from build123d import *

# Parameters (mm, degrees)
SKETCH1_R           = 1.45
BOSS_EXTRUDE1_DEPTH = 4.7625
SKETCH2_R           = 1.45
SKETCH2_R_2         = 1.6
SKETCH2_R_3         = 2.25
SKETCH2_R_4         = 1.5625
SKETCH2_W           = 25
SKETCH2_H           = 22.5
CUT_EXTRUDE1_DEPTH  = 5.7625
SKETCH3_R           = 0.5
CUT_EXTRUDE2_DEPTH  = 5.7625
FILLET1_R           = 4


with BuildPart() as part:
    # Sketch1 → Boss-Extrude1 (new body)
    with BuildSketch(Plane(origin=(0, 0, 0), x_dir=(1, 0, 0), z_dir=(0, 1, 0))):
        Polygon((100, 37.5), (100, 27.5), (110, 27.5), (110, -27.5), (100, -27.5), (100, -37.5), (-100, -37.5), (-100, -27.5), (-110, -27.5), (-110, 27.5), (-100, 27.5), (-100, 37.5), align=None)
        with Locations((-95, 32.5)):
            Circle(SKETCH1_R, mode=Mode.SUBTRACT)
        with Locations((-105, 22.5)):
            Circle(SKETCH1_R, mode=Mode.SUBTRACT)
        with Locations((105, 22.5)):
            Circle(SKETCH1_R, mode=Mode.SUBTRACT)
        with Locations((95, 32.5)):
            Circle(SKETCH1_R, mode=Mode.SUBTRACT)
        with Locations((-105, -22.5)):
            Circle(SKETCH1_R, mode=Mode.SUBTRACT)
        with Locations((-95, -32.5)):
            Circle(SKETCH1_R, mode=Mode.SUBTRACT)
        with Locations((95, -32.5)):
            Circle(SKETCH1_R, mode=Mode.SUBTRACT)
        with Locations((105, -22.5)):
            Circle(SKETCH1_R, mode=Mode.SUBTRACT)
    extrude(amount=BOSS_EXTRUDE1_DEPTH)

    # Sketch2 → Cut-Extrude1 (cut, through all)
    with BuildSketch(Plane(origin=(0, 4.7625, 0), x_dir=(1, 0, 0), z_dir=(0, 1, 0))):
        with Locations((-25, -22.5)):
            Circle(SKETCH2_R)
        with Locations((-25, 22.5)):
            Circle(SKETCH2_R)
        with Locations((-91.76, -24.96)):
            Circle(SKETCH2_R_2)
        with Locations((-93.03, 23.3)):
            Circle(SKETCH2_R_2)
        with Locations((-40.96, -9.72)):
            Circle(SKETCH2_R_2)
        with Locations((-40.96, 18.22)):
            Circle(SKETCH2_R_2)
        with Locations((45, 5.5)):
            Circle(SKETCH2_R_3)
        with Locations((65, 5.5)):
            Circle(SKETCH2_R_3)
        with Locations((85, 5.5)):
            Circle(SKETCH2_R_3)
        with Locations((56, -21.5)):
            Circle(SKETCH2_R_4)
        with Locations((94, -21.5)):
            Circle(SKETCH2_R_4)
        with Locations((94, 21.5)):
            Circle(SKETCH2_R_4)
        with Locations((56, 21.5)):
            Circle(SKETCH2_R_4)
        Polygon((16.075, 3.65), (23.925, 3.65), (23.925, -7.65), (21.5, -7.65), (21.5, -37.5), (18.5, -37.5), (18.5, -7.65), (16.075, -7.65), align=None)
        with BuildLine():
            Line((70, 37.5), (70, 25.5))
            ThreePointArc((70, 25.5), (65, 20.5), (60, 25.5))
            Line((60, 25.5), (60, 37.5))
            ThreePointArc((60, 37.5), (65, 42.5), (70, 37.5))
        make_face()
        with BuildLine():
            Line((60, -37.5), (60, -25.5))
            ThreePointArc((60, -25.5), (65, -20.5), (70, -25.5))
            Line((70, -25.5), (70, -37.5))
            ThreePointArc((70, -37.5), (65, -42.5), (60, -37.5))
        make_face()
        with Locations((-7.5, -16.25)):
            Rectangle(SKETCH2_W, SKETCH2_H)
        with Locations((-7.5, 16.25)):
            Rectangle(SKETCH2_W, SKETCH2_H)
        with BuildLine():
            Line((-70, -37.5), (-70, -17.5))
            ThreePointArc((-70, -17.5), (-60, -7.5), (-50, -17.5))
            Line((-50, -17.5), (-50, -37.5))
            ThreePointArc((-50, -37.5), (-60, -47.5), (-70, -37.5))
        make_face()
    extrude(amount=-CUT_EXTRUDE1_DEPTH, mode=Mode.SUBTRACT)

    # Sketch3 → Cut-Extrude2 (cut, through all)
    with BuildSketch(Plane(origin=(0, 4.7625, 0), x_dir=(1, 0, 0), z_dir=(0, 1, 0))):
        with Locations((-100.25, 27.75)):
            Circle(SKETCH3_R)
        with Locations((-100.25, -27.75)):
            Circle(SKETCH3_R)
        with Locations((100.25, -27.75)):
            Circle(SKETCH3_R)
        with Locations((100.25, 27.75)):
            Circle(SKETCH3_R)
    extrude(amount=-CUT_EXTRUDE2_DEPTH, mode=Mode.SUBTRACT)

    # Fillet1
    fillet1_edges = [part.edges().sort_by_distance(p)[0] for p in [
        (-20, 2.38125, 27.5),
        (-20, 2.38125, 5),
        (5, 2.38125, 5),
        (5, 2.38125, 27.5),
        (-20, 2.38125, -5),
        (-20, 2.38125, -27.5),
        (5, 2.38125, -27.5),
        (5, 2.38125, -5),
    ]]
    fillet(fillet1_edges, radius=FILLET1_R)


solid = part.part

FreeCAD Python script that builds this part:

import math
import FreeCAD as App
import Part
import Sketcher
from FreeCAD import Vector


def edges_at(feature, points):
    """Names of the edges that pass closest to the given points."""
    edges = feature.Shape.Edges
    near = lambda p: min(range(len(edges)), key=lambda i: edges[i].distToShape(Part.Vertex(*p))[0])
    return sorted({f"Edge{near(p) + 1}" for p in points})


def add_polygon(sketch, points):
    """Adds a closed chain of lines whose ends are joined by coincident constraints."""
    first, n = sketch.GeometryCount, len(points)
    for a, b in zip(points, points[1:] + points[:1]):
        sketch.addGeometry(Part.LineSegment(App.Vector(*a, 0), App.Vector(*b, 0)), False)
    for i in range(n):
        sketch.addConstraint(Sketcher.Constraint("Coincident", first + i, 2, first + (i + 1) % n, 1))

doc = App.newDocument("Part")
body = doc.addObject("PartDesign::Body", "Body")

sketch1 = body.newObject("Sketcher::SketchObject", "Sketch")
sketch1.AttachmentSupport = (doc.getObject("XZ_Plane"), [""])
sketch1.MapMode = "FlatFace"
add_polygon(sketch1, [(100, -27.5), (100, -37.5), (-100, -37.5), (-100, -27.5), (-110, -27.5), (-110, 27.5), (-100, 27.5), (-100, 37.5), (100, 37.5), (100, 27.5), (110, 27.5), (110, -27.5)])
sketch1.addGeometry(Part.Circle(Vector(95, 32.5, 0), Vector(0, 0, 1), 1.4), False)
sketch1.addGeometry(Part.Circle(Vector(105, 22.5, 0), Vector(0, 0, 1), 1.4), False)
sketch1.addGeometry(Part.Circle(Vector(-95, 32.5, 0), Vector(0, 0, 1), 1.4), False)
sketch1.addGeometry(Part.Circle(Vector(-105, 22.5, 0), Vector(0, 0, 1), 1.4), False)
sketch1.addGeometry(Part.Circle(Vector(105, -22.5, 0), Vector(0, 0, 1), 1.4), False)
sketch1.addGeometry(Part.Circle(Vector(95, -32.5, 0), Vector(0, 0, 1), 1.4), False)
sketch1.addGeometry(Part.Circle(Vector(-105, -22.5, 0), Vector(0, 0, 1), 1.4), False)
sketch1.addGeometry(Part.Circle(Vector(-95, -32.5, 0), Vector(0, 0, 1), 1.4), False)
sketch1.addConstraint(Sketcher.Constraint("Vertical", 0))
sketch1.addConstraint(Sketcher.Constraint("Horizontal", 1))
sketch1.addConstraint(Sketcher.Constraint("Vertical", 2))
sketch1.addConstraint(Sketcher.Constraint("Horizontal", 3))
sketch1.addConstraint(Sketcher.Constraint("Vertical", 4))
sketch1.addConstraint(Sketcher.Constraint("Horizontal", 5))
sketch1.addConstraint(Sketcher.Constraint("Vertical", 6))
sketch1.addConstraint(Sketcher.Constraint("Horizontal", 7))
sketch1.addConstraint(Sketcher.Constraint("Vertical", 8))
sketch1.addConstraint(Sketcher.Constraint("Horizontal", 9))
sketch1.addConstraint(Sketcher.Constraint("Vertical", 10))
sketch1.addConstraint(Sketcher.Constraint("Horizontal", 11))
sketch1.addConstraint(Sketcher.Constraint("Equal", 12, 13))
sketch1.addConstraint(Sketcher.Constraint("Equal", 13, 14))
sketch1.addConstraint(Sketcher.Constraint("Equal", 14, 15))
sketch1.addConstraint(Sketcher.Constraint("Equal", 15, 16))
sketch1.addConstraint(Sketcher.Constraint("Equal", 16, 17))
sketch1.addConstraint(Sketcher.Constraint("Equal", 17, 18))
sketch1.addConstraint(Sketcher.Constraint("Equal", 18, 19))
sketch1.addConstraint(Sketcher.Constraint("Symmetric", 15, 3, 16, 3, -1, 1))
sketch1.addConstraint(Sketcher.Constraint("Symmetric", 14, 3, 17, 3, -1, 1))
sketch1.addConstraint(Sketcher.Constraint("Symmetric", 13, 3, 18, 3, -1, 1))
sketch1.addConstraint(Sketcher.Constraint("Symmetric", 12, 3, 19, 3, -1, 1))
sketch1.addConstraint(Sketcher.Constraint("Symmetric", 0, 2, 6, 2, -1, 1))
sketch1.addConstraint(Sketcher.Constraint("Symmetric", 2, 2, 8, 2, -1, 1))
sketch1.addConstraint(Sketcher.Constraint("Symmetric", 4, 2, 10, 2, -1, 1))
sketch1.addConstraint(Sketcher.Constraint("Symmetric", 12, 3, 14, 3, -2))
sketch1.addConstraint(Sketcher.Constraint("Symmetric", 13, 3, 15, 3, -2))
sketch1.addConstraint(Sketcher.Constraint("Symmetric", 5, 2, 8, 2, -2))
sketch1.addConstraint(Sketcher.Constraint("Equal", 11, 0))
sketch1.addConstraint(Sketcher.Constraint("Diameter", 12, 2.9))
sketch1.addConstraint(Sketcher.Constraint("DistanceX", 1, 2, 1, 1, 200.0))
sketch1.addConstraint(Sketcher.Constraint("DistanceX", 3, 2, 3, 1, 10.0))
sketch1.addConstraint(Sketcher.Constraint("DistanceY", 4, 1, 4, 2, 55.0))
sketch1.addConstraint(Sketcher.Constraint("DistanceX", -1, 1, 12, 3, 95.0))
sketch1.addConstraint(Sketcher.Constraint("DistanceX", -1, 1, 13, 3, 105.0))
sketch1.addConstraint(Sketcher.Constraint("DistanceY", 13, 3, 12, 3, 10.0))
sketch1.addConstraint(Sketcher.Constraint("DistanceY", 16, 3, 13, 3, 45.0))
pad1 = body.newObject("PartDesign::Pad", "Pad")
pad1.Profile = sketch1
pad1.Length = 4.7625
pad1.Reversed = True

sketch2 = body.newObject("Sketcher::SketchObject", "Sketch001")
sketch2.AttachmentSupport = (doc.getObject("XZ_Plane"), [""])
sketch2.MapMode = "FlatFace"
sketch2.AttachmentOffset = App.Placement(Vector(0, 0, -4.7625), App.Rotation())
sketch2.addGeometry(Part.Circle(Vector(-25, 22.5, 0), Vector(0, 0, 1), 1.4), False)
sketch2.addGeometry(Part.Circle(Vector(-25, -22.5, 0), Vector(0, 0, 1), 1.4), False)
sketch2.addGeometry(Part.Circle(Vector(-91.8, 25, 0), Vector(0, 0, 1), 1.6), False)
sketch2.addGeometry(Part.Circle(Vector(-93, -23.3, 0), Vector(0, 0, 1), 1.6), False)
sketch2.addGeometry(Part.Circle(Vector(-41, 9.7, 0), Vector(0, 0, 1), 1.6), False)
sketch2.addGeometry(Part.Circle(Vector(-41, -18.2, 0), Vector(0, 0, 1), 1.6), False)
sketch2.addGeometry(Part.Circle(Vector(45, -5.5, 0), Vector(0, 0, 1), 2.2), False)
sketch2.addGeometry(Part.Circle(Vector(65, -5.5, 0), Vector(0, 0, 1), 2.2), False)
sketch2.addGeometry(Part.Circle(Vector(85, -5.5, 0), Vector(0, 0, 1), 2.2), False)
sketch2.addGeometry(Part.Circle(Vector(56, 21.5, 0), Vector(0, 0, 1), 1.6), False)
sketch2.addGeometry(Part.Circle(Vector(94, 21.5, 0), Vector(0, 0, 1), 1.6), False)
sketch2.addGeometry(Part.Circle(Vector(94, -21.5, 0), Vector(0, 0, 1), 1.6), False)
sketch2.addGeometry(Part.Circle(Vector(56, -21.5, 0), Vector(0, 0, 1), 1.6), False)
add_polygon(sketch2, [(23.9, -3.6), (16.1, -3.6), (16.1, 7.7), (18.5, 7.7), (18.5, 37.5), (21.5, 37.5), (21.5, 7.7), (23.9, 7.7)])
sketch2.addGeometry(Part.LineSegment(Vector(70, -25.5, 0), Vector(70, -37.5, 0)), False)
sketch2.addGeometry(Part.ArcOfCircle(Part.Circle(Vector(65, -37.5, 0), Vector(0, 0, 1), 5), math.radians(180), math.radians(360)), False)
sketch2.addGeometry(Part.LineSegment(Vector(60, -37.5, 0), Vector(60, -25.5, 0)), False)
sketch2.addGeometry(Part.ArcOfCircle(Part.Circle(Vector(65, -25.5, 0), Vector(0, 0, 1), 5), math.radians(0), math.radians(180)), False)
sketch2.addGeometry(Part.LineSegment(Vector(60, 25.5, 0), Vector(60, 37.5, 0)), False)
sketch2.addGeometry(Part.ArcOfCircle(Part.Circle(Vector(65, 37.5, 0), Vector(0, 0, 1), 5), math.radians(0), math.radians(180)), False)
sketch2.addGeometry(Part.LineSegment(Vector(70, 37.5, 0), Vector(70, 25.5, 0)), False)
sketch2.addGeometry(Part.ArcOfCircle(Part.Circle(Vector(65, 25.5, 0), Vector(0, 0, 1), 5), math.radians(180), math.radians(360)), False)
add_polygon(sketch2, [(-20, 5), (-20, 27.5), (5, 27.5), (5, 5)])
add_polygon(sketch2, [(-20, -27.5), (-20, -5), (5, -5), (5, -27.5)])
sketch2.addGeometry(Part.LineSegment(Vector(-70, 17.5, 0), Vector(-70, 37.5, 0)), False)
sketch2.addGeometry(Part.ArcOfCircle(Part.Circle(Vector(-60, 37.5, 0), Vector(0, 0, 1), 10), math.radians(0), math.radians(180)), False)
sketch2.addGeometry(Part.LineSegment(Vector(-50, 37.5, 0), Vector(-50, 17.5, 0)), False)
sketch2.addGeometry(Part.ArcOfCircle(Part.Circle(Vector(-60, 17.5, 0), Vector(0, 0, 1), 10), math.radians(180), math.radians(360)), False)
sketch2.addConstraint(Sketcher.Constraint("Tangent", 21, 2, 22, 2))
sketch2.addConstraint(Sketcher.Constraint("Tangent", 22, 1, 23, 1))
sketch2.addConstraint(Sketcher.Constraint("Tangent", 23, 2, 24, 2))
sketch2.addConstraint(Sketcher.Constraint("Tangent", 24, 1, 21, 1))
sketch2.addConstraint(Sketcher.Constraint("Tangent", 25, 2, 26, 2))
sketch2.addConstraint(Sketcher.Constraint("Tangent", 26, 1, 27, 1))
sketch2.addConstraint(Sketcher.Constraint("Tangent", 27, 2, 28, 2))
sketch2.addConstraint(Sketcher.Constraint("Tangent", 28, 1, 25, 1))
sketch2.addConstraint(Sketcher.Constraint("Tangent", 37, 2, 38, 2))
sketch2.addConstraint(Sketcher.Constraint("Tangent", 38, 1, 39, 1))
sketch2.addConstraint(Sketcher.Constraint("Tangent", 39, 2, 40, 2))
sketch2.addConstraint(Sketcher.Constraint("Tangent", 40, 1, 37, 1))
sketch2.addConstraint(Sketcher.Constraint("Horizontal", 13))
sketch2.addConstraint(Sketcher.Constraint("Vertical", 14))
sketch2.addConstraint(Sketcher.Constraint("Horizontal", 15))
sketch2.addConstraint(Sketcher.Constraint("Vertical", 16))
sketch2.addConstraint(Sketcher.Constraint("Horizontal", 17))
sketch2.addConstraint(Sketcher.Constraint("Vertical", 18))
sketch2.addConstraint(Sketcher.Constraint("Horizontal", 19))
sketch2.addConstraint(Sketcher.Constraint("Vertical", 20))
sketch2.addConstraint(Sketcher.Constraint("Vertical", 21))
sketch2.addConstraint(Sketcher.Constraint("Vertical", 23))
sketch2.addConstraint(Sketcher.Constraint("Vertical", 25))
sketch2.addConstraint(Sketcher.Constraint("Vertical", 27))
sketch2.addConstraint(Sketcher.Constraint("Vertical", 29))
sketch2.addConstraint(Sketcher.Constraint("Horizontal", 30))
sketch2.addConstraint(Sketcher.Constraint("Vertical", 31))
sketch2.addConstraint(Sketcher.Constraint("Horizontal", 32))
sketch2.addConstraint(Sketcher.Constraint("Vertical", 33))
sketch2.addConstraint(Sketcher.Constraint("Horizontal", 34))
sketch2.addConstraint(Sketcher.Constraint("Vertical", 35))
sketch2.addConstraint(Sketcher.Constraint("Horizontal", 36))
sketch2.addConstraint(Sketcher.Constraint("Vertical", 37))
sketch2.addConstraint(Sketcher.Constraint("Vertical", 39))
sketch2.addConstraint(Sketcher.Constraint("Equal", 0, 1))
sketch2.addConstraint(Sketcher.Constraint("Equal", 2, 3))
sketch2.addConstraint(Sketcher.Constraint("Equal", 3, 4))
sketch2.addConstraint(Sketcher.Constraint("Equal", 4, 5))
sketch2.addConstraint(Sketcher.Constraint("Equal", 6, 7))
sketch2.addConstraint(Sketcher.Constraint("Equal", 7, 8))
sketch2.addConstraint(Sketcher.Constraint("Equal", 9, 10))
sketch2.addConstraint(Sketcher.Constraint("Equal", 10, 11))
sketch2.addConstraint(Sketcher.Constraint("Equal", 11, 12))
sketch2.addConstraint(Sketcher.Constraint("Equal", 24, 26))
sketch2.addConstraint(Sketcher.Constraint("Symmetric", 21, 2, 37, 2, -1, 1))
sketch2.addConstraint(Sketcher.Constraint("Symmetric", 26, 1, 37, 2, -2))
sketch2.addConstraint(Sketcher.Constraint("Symmetric", 0, 3, 1, 3, -1))
sketch2.addConstraint(Sketcher.Constraint("Symmetric", 10, 3, 11, 3, -1))
sketch2.addConstraint(Sketcher.Constraint("Symmetric", 9, 3, 12, 3, -1))
sketch2.addConstraint(Sketcher.Constraint("Symmetric", 32, 2, 33, 2, -1))
sketch2.addConstraint(Sketcher.Constraint("Symmetric", 30, 2, 35, 2, -1))
sketch2.addConstraint(Sketcher.Constraint("Horizontal", 6, 3, 7, 3))
sketch2.addConstraint(Sketcher.Constraint("Horizontal", 7, 3, 8, 3))
sketch2.addConstraint(Sketcher.Constraint("Horizontal", 9, 3, 10, 3))
sketch2.addConstraint(Sketcher.Constraint("Horizontal", 38, 3, 16, 2))
sketch2.addConstraint(Sketcher.Constraint("Horizontal", 15, 2, 18, 2))
sketch2.addConstraint(Sketcher.Constraint("Vertical", 4, 3, 5, 3))
sketch2.addConstraint(Sketcher.Constraint("Vertical", 7, 3, 22, 3))
sketch2.addConstraint(Sketcher.Constraint("Equal", 15, 19))
sketch2.addConstraint(Sketcher.Constraint("Equal", 23, 25))
sketch2.addConstraint(Sketcher.Constraint("Radius", 22, 5.0))
sketch2.addConstraint(Sketcher.Constraint("Radius", 38, 10.0))
sketch2.addConstraint(Sketcher.Constraint("Diameter", 0, 2.9))
sketch2.addConstraint(Sketcher.Constraint("Diameter", 2, 3.2))
sketch2.addConstraint(Sketcher.Constraint("Diameter", 6, 4.5))
sketch2.addConstraint(Sketcher.Constraint("DistanceX", 17, 1, 17, 2, 3.0))
sketch2.addConstraint(Sketcher.Constraint("DistanceX", 30, 1, 30, 2, 25.0))
sketch2.addConstraint(Sketcher.Constraint("DistanceY", 21, 2, 21, 1, 12.0))
sketch2.addConstraint(Sketcher.Constraint("DistanceY", 37, 1, 37, 2, 20.0))
sketch2.addConstraint(Sketcher.Constraint("Diameter", 9, 3.125))
sketch2.addConstraint(Sketcher.Constraint("DistanceY", 14, 1, 14, 2, 11.3))
sketch2.addConstraint(Sketcher.Constraint("DistanceY", 29, 1, 29, 2, 22.5))
sketch2.addConstraint(Sketcher.Constraint("DistanceX", 0, 3, -1, 1, 25.0))
sketch2.addConstraint(Sketcher.Constraint("DistanceX", -1, 1, 6, 3, 45.0))
sketch2.addConstraint(Sketcher.Constraint("DistanceX", -1, 1, 7, 3, 65.0))
sketch2.addConstraint(Sketcher.Constraint("DistanceX", -1, 1, 8, 3, 85.0))
sketch2.addConstraint(Sketcher.Constraint("DistanceX", -1, 1, 9, 3, 56.0))
sketch2.addConstraint(Sketcher.Constraint("DistanceX", -1, 1, 10, 3, 94.0))
sketch2.addConstraint(Sketcher.Constraint("DistanceX", 29, 2, -1, 1, 20.0))
sketch2.addConstraint(Sketcher.Constraint("DistanceY", -1, 1, 31, 2, 5.0))
sketch2.addConstraint(Sketcher.Constraint("DistanceY", 1, 3, 0, 3, 45.0))
sketch2.addConstraint(Sketcher.Constraint("DistanceY", 1, 3, 6, 3, 17.0))
sketch2.addConstraint(Sketcher.Constraint("DistanceY", 7, 3, 9, 3, 27.0))
sketch2.addConstraint(Sketcher.Constraint("DistanceY", 22, 3, 12, 3, 16.0))
sketch2.addConstraint(Sketcher.Constraint("DistanceX", 13, 2, 13, 1, 7.85))
sketch2.addConstraint(Sketcher.Constraint("DistanceY", 16, 1, 16, 2, 29.85))
sketch2.addConstraint(Sketcher.Constraint("DistanceY", 3, 3, -1, 1, 23.3))
sketch2.addConstraint(Sketcher.Constraint("DistanceX", -1, 1, 15, 2, 18.5))
sketch2.addConstraint(Sketcher.Constraint("DistanceX", 2, 3, 4, 3, 50.8))
sketch2.addConstraint(Sketcher.Constraint("DistanceX", 2, 3, -1, 1, 91.76))
sketch2.addConstraint(Sketcher.Constraint("DistanceY", -1, 1, 2, 3, 24.96))
sketch2.addConstraint(Sketcher.Constraint("DistanceX", 3, 3, -1, 1, 93.03))
sketch2.addConstraint(Sketcher.Constraint("DistanceY", -1, 1, 4, 3, 9.72))
sketch2.addConstraint(Sketcher.Constraint("DistanceY", 5, 3, -1, 1, 18.22))
pocket1 = body.newObject("PartDesign::Pocket", "Pocket")
pocket1.Profile = sketch2
pocket1.Type = "ThroughAll"
pocket1.Reversed = True

sketch3 = body.newObject("Sketcher::SketchObject", "Sketch002")
sketch3.AttachmentSupport = (doc.getObject("XZ_Plane"), [""])
sketch3.MapMode = "FlatFace"
sketch3.AttachmentOffset = App.Placement(Vector(0, 0, -4.7625), App.Rotation())
sketch3.addGeometry(Part.Circle(Vector(-100.2, -27.8, 0), Vector(0, 0, 1), 0.5), False)
sketch3.addGeometry(Part.Circle(Vector(-100.2, 27.8, 0), Vector(0, 0, 1), 0.5), False)
sketch3.addGeometry(Part.Circle(Vector(100.2, 27.8, 0), Vector(0, 0, 1), 0.5), False)
sketch3.addGeometry(Part.Circle(Vector(100.2, -27.8, 0), Vector(0, 0, 1), 0.5), False)
sketch3.addConstraint(Sketcher.Constraint("Equal", 0, 1))
sketch3.addConstraint(Sketcher.Constraint("Equal", 1, 2))
sketch3.addConstraint(Sketcher.Constraint("Equal", 2, 3))
sketch3.addConstraint(Sketcher.Constraint("Symmetric", 0, 3, 2, 3, -1, 1))
sketch3.addConstraint(Sketcher.Constraint("Symmetric", 1, 3, 3, 3, -1, 1))
sketch3.addConstraint(Sketcher.Constraint("Symmetric", 1, 3, 2, 3, -2))
sketch3.addConstraint(Sketcher.Constraint("Diameter", 0, 1.0))
sketch3.addConstraint(Sketcher.Constraint("DistanceY", 0, 3, 1, 3, 55.5))
sketch3.addConstraint(Sketcher.Constraint("DistanceX", 1, 3, 2, 3, 200.5))
pocket2 = body.newObject("PartDesign::Pocket", "Pocket001")
pocket2.Profile = sketch3
pocket2.Type = "ThroughAll"
pocket2.Reversed = True
doc.recompute()

fillet = body.newObject("PartDesign::Fillet", "Fillet")
fillet.Base = (pocket2, edges_at(pocket2, [
    (-20, 2.381, 27.5),
    (-20, 2.381, 5),
    (5, 2.381, 5),
    (5, 2.381, 27.5),
    (-20, 2.381, -5),
    (-20, 2.381, -27.5),
    (5, 2.381, -27.5),
    (5, 2.381, -5),
]))
fillet.Radius = 4

doc.recompute()
